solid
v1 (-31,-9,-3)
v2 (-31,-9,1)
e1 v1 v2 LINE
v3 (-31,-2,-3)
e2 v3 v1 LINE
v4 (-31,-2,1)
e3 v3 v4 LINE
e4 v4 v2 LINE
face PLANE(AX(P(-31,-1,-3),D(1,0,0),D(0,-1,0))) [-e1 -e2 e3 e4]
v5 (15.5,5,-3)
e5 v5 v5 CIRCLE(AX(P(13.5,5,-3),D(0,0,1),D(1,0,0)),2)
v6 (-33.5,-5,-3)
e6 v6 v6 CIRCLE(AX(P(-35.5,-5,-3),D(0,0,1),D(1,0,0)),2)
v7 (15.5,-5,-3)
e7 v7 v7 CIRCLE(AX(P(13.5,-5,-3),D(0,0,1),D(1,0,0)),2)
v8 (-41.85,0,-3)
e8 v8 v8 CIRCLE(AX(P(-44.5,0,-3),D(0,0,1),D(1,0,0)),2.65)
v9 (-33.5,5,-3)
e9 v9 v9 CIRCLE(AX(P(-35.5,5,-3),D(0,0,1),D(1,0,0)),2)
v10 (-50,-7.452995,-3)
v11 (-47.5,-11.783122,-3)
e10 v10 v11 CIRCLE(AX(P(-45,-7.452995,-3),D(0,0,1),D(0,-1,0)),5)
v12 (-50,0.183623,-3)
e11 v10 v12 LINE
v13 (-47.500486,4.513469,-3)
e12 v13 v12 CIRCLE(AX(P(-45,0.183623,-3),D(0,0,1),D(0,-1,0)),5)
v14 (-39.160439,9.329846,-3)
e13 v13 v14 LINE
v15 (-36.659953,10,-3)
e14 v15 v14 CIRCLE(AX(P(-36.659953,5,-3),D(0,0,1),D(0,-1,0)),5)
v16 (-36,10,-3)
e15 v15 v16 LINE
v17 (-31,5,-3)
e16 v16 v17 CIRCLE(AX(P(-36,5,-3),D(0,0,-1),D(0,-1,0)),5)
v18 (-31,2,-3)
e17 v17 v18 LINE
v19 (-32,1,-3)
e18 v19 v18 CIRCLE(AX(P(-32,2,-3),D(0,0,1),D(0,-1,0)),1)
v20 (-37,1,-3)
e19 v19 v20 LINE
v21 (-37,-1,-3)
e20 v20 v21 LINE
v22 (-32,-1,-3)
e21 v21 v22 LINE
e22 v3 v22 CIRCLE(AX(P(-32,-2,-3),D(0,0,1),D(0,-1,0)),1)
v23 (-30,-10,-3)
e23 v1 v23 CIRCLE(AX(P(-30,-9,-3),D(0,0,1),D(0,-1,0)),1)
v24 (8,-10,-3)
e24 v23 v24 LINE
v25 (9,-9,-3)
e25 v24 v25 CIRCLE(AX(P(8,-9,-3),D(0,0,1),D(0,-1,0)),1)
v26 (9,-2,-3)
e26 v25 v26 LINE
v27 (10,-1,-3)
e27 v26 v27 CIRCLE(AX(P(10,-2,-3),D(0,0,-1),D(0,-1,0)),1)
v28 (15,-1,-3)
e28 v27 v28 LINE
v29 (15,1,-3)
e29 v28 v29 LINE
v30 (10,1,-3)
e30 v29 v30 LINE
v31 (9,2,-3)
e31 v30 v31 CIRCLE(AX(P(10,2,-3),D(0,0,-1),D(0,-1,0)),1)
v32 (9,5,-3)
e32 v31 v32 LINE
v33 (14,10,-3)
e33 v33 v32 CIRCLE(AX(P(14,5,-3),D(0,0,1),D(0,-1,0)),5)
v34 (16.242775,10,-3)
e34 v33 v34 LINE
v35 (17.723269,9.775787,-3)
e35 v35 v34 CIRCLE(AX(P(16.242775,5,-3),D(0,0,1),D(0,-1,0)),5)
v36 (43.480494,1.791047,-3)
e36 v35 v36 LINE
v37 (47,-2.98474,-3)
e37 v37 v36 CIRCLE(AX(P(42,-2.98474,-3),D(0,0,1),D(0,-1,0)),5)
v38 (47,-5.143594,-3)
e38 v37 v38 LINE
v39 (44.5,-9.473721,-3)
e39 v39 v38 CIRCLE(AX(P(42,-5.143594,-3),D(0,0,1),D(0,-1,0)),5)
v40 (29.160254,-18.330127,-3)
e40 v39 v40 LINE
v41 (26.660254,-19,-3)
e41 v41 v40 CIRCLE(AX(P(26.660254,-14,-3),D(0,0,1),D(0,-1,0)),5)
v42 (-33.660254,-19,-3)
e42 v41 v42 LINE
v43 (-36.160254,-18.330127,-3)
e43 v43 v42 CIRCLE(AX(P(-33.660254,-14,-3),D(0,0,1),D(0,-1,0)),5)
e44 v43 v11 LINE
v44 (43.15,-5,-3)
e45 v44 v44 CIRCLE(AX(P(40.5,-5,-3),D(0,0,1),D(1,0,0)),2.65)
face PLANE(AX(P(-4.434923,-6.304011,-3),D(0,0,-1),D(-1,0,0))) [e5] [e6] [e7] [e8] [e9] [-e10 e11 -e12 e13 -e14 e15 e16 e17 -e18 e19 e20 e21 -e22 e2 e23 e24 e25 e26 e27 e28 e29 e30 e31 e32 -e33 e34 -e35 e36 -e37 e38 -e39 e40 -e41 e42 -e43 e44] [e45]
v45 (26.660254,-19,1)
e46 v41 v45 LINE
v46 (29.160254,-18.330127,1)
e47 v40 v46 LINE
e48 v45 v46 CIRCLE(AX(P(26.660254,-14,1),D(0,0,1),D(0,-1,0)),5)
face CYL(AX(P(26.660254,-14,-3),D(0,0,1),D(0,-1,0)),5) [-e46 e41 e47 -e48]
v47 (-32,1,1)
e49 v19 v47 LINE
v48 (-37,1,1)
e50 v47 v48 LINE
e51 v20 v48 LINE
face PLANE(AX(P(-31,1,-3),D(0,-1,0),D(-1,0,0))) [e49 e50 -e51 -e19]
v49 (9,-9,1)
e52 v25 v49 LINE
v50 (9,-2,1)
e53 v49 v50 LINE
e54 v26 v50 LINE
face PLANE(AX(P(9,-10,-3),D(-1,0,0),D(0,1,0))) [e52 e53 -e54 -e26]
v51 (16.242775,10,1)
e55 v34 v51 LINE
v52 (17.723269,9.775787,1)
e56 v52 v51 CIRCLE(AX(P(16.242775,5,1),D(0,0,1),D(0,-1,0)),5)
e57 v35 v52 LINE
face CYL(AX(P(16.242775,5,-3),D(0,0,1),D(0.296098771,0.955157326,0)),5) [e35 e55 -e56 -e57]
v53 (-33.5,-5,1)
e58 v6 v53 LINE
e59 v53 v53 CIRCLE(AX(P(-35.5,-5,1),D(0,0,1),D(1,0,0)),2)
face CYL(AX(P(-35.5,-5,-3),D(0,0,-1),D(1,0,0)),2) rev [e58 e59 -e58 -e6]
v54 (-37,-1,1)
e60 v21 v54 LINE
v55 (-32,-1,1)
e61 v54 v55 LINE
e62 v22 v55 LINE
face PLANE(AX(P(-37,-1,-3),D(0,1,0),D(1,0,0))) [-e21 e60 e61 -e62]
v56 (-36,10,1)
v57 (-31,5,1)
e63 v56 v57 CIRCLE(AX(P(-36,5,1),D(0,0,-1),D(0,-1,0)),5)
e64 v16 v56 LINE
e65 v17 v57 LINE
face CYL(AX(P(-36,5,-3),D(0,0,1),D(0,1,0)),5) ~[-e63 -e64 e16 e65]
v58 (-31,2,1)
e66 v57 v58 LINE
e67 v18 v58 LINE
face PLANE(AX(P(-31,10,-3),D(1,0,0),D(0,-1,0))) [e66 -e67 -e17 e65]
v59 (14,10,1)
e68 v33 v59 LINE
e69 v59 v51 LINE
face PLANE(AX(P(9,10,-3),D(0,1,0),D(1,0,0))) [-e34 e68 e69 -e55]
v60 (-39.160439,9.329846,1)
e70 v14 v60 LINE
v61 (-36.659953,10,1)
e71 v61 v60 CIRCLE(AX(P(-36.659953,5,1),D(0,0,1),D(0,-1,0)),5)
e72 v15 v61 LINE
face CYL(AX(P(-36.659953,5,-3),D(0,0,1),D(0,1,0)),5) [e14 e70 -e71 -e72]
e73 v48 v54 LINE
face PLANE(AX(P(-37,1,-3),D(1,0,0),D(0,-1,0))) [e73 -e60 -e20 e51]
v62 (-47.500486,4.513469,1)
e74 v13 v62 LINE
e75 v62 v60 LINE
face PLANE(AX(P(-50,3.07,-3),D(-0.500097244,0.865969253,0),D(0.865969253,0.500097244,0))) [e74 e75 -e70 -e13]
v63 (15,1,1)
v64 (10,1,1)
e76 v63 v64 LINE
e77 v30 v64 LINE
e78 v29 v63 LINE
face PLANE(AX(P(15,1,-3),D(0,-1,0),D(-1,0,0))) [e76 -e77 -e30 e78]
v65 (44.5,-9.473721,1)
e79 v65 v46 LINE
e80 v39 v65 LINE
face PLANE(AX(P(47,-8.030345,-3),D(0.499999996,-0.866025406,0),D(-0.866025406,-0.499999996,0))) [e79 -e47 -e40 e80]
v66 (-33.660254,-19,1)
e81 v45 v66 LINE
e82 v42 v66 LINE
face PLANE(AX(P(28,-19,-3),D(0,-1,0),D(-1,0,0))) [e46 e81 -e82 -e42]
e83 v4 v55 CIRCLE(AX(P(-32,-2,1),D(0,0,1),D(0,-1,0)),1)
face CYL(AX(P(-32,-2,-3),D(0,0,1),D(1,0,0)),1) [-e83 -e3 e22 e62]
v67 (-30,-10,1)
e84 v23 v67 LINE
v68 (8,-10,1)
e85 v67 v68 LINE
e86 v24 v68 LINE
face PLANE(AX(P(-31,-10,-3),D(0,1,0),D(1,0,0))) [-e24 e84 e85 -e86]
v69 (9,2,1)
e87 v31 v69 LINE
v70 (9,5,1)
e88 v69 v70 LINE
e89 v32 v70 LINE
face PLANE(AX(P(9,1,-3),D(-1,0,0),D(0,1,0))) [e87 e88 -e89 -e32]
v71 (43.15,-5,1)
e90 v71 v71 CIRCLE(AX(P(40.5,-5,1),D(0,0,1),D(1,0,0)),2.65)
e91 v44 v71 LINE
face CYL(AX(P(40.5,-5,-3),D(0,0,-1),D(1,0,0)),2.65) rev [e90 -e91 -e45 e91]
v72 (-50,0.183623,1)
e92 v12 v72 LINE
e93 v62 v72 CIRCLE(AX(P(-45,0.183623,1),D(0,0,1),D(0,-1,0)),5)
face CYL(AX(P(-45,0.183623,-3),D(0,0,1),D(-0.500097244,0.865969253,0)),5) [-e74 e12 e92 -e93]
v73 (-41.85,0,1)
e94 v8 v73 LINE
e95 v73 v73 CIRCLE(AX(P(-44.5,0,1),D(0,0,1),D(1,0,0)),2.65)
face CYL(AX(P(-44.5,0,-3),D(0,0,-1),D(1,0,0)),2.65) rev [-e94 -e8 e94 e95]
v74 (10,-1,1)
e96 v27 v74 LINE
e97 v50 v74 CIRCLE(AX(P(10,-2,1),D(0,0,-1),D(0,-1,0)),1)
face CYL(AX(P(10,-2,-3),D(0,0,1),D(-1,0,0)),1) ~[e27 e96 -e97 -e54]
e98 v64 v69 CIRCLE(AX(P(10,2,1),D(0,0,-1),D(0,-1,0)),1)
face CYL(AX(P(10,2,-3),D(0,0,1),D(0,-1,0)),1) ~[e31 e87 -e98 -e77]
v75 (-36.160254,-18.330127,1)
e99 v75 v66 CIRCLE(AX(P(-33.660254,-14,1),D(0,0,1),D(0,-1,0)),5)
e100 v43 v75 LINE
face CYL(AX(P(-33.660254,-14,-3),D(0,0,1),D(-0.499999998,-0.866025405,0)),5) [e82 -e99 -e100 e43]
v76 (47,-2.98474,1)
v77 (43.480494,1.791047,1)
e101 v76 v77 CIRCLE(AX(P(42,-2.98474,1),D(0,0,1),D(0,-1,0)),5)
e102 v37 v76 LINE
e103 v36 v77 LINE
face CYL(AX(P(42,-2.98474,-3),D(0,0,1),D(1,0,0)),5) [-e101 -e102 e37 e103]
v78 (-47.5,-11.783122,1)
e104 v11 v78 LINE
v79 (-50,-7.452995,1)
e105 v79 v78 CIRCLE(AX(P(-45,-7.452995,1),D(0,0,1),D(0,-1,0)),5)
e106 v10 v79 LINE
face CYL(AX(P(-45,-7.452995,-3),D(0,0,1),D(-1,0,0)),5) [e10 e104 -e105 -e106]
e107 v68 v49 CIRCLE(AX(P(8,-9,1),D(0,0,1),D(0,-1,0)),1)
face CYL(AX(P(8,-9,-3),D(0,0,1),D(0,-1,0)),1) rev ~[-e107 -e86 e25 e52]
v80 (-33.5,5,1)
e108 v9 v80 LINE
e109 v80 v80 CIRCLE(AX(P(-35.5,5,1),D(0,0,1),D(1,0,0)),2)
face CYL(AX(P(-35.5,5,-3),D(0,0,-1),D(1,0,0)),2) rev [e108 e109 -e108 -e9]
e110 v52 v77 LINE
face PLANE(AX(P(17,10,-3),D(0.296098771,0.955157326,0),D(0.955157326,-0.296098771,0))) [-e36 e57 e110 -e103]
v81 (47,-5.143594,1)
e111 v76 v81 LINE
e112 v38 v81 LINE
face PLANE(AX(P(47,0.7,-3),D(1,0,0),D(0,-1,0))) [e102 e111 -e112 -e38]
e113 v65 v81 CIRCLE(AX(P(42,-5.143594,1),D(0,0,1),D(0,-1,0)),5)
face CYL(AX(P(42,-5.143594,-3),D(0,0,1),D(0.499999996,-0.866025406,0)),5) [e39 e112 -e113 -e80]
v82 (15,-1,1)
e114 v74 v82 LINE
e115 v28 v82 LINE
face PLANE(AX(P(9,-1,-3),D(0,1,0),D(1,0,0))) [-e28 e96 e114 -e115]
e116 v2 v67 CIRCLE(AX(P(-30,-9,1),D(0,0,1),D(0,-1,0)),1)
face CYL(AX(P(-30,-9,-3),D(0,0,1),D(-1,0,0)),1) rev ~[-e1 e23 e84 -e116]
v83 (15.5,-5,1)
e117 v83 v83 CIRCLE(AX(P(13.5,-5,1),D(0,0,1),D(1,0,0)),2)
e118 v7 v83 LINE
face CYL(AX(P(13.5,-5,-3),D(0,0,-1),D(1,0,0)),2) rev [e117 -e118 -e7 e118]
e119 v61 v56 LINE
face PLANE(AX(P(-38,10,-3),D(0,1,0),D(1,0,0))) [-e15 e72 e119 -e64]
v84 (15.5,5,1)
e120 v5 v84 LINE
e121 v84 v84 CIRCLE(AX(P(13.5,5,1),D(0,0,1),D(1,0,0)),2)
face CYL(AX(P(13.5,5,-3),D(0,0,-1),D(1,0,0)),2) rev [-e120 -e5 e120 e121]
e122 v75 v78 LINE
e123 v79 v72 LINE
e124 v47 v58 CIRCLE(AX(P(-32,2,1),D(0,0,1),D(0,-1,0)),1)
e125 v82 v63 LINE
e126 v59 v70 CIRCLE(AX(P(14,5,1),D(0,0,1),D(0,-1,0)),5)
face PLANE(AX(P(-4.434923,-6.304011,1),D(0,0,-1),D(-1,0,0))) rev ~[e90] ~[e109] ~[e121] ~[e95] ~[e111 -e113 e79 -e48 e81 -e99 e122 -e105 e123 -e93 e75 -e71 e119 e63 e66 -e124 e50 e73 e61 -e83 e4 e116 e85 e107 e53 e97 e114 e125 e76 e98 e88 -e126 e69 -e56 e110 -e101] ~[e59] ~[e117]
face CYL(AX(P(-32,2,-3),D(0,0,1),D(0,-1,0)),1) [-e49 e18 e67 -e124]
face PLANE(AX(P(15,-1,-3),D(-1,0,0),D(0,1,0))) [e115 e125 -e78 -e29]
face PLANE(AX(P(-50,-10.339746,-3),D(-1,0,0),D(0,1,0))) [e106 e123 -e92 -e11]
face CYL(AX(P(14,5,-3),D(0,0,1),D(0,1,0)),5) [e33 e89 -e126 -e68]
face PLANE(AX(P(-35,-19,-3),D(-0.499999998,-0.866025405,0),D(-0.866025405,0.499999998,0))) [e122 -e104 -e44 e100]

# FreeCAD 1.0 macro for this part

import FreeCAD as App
import Part
import Sketcher

V = App.Vector
Q = App.Units.Quantity


def edges_at(feature, points):
    """Names of the edges that pass closest to the given points."""
    edges = feature.Shape.Edges
    near = lambda p: min(range(len(edges)), key=lambda i: edges[i].distToShape(Part.Vertex(*p))[0])
    return sorted({f"Edge{near(p) + 1}" for p in points})

doc = App.newDocument("Part")
params = doc.addObject("Spreadsheet::Sheet", "Params")
for row, (alias, value) in enumerate([
    ("sketch1_diameter", "4 mm"),
    ("sketch1_diameter2", "5.3 mm"),
    ("sketch1_width", "7 mm"),
    ("sketch1_width2", "63 mm"),
    ("sketch1_width3", "8 mm"),
    ("pad1_length", "4 mm"),
    ("fillet_radius", "5 mm"),
    ("fillet2_radius", "1 mm"),
    ("fillet3_radius", "1 mm"),
], start=1):
    params.set(f"A{row}", alias)
    params.set(f"B{row}", "=" + value)
    params.setAlias(f"B{row}", alias)

body = doc.addObject("PartDesign::Body", "Body")

sketch1 = body.newObject("Sketcher::SketchObject", "Sketch")
sketch1.AttachmentSupport = (doc.getObject("XY_Plane"), [""])
sketch1.MapMode = "FlatFace"
sketch1.AttachmentOffset = App.Placement(V(0, 0, -3), App.Rotation())
sketch1.addGeometry(Part.LineSegment(V(-31, 10, 0), V(-38, 10, 0)), False)
sketch1.addGeometry(Part.LineSegment(V(-38, 10, 0), V(-50, 3.07, 0)), False)
sketch1.addGeometry(Part.LineSegment(V(-50, 3.07, 0), V(-50, -10.339746, 0)), False)
sketch1.addGeometry(Part.LineSegment(V(-50, -10.339746, 0), V(-35, -19, 0)), False)
sketch1.addGeometry(Part.LineSegment(V(-35, -19, 0), V(28, -19, 0)), False)
sketch1.addGeometry(Part.LineSegment(V(28, -19, 0), V(47, -8.030345, 0)), False)
sketch1.addGeometry(Part.LineSegment(V(47, -8.030345, 0), V(47, 0.7, 0)), False)
sketch1.addGeometry(Part.LineSegment(V(47, 0.7, 0), V(17, 10, 0)), False)
sketch1.addGeometry(Part.LineSegment(V(17, 10, 0), V(9, 10, 0)), False)
sketch1.addGeometry(Part.LineSegment(V(9, 10, 0), V(9, 1, 0)), False)
sketch1.addGeometry(Part.LineSegment(V(9, 1, 0), V(15, 1, 0)), False)
sketch1.addGeometry(Part.LineSegment(V(15, 1, 0), V(15, -1, 0)), False)
sketch1.addGeometry(Part.LineSegment(V(15, -1, 0), V(9, -1, 0)), False)
sketch1.addGeometry(Part.LineSegment(V(9, -1, 0), V(9, -10, 0)), False)
sketch1.addGeometry(Part.LineSegment(V(9, -10, 0), V(-31, -10, 0)), False)
sketch1.addGeometry(Part.LineSegment(V(-31, -10, 0), V(-31, -1, 0)), False)
sketch1.addGeometry(Part.LineSegment(V(-31, -1, 0), V(-37, -1, 0)), False)
sketch1.addGeometry(Part.LineSegment(V(-37, -1, 0), V(-37, 1, 0)), False)
sketch1.addGeometry(Part.LineSegment(V(-37, 1, 0), V(-31, 1, 0)), False)
sketch1.addGeometry(Part.LineSegment(V(-31, 1, 0), V(-31, 10, 0)), False)
sketch1.addGeometry(Part.Circle(V(40.5, -5, 0), V(0, 0, 1), 2.65), False)
sketch1.addGeometry(Part.Circle(V(13.5, -5, 0), V(0, 0, 1), 2), False)
sketch1.addGeometry(Part.Circle(V(-35.5, -5, 0), V(0, 0, 1), 2), False)
sketch1.addGeometry(Part.Circle(V(13.5, 5, 0), V(0, 0, 1), 2), False)
sketch1.addGeometry(Part.Circle(V(-44.5, 0, 0), V(0, 0, 1), 2.65), False)
sketch1.addGeometry(Part.Circle(V(-35.5, 5, 0), V(0, 0, 1), 2), False)
sketch1.addConstraint(Sketcher.Constraint("Coincident", 0, 2, 1, 1))
sketch1.addConstraint(Sketcher.Constraint("Coincident", 1, 2, 2, 1))
sketch1.addConstraint(Sketcher.Constraint("Coincident", 2, 2, 3, 1))
sketch1.addConstraint(Sketcher.Constraint("Coincident", 3, 2, 4, 1))
sketch1.addConstraint(Sketcher.Constraint("Coincident", 4, 2, 5, 1))
sketch1.addConstraint(Sketcher.Constraint("Coincident", 5, 2, 6, 1))
sketch1.addConstraint(Sketcher.Constraint("Coincident", 6, 2, 7, 1))
sketch1.addConstraint(Sketcher.Constraint("Coincident", 7, 2, 8, 1))
sketch1.addConstraint(Sketcher.Constraint("Coincident", 8, 2, 9, 1))
sketch1.addConstraint(Sketcher.Constraint("Coincident", 9, 2, 10, 1))
sketch1.addConstraint(Sketcher.Constraint("Coincident", 10, 2, 11, 1))
sketch1.addConstraint(Sketcher.Constraint("Coincident", 11, 2, 12, 1))
sketch1.addConstraint(Sketcher.Constraint("Coincident", 12, 2, 13, 1))
sketch1.addConstraint(Sketcher.Constraint("Coincident", 13, 2, 14, 1))
sketch1.addConstraint(Sketcher.Constraint("Coincident", 14, 2, 15, 1))
sketch1.addConstraint(Sketcher.Constraint("Coincident", 15, 2, 16, 1))
sketch1.addConstraint(Sketcher.Constraint("Coincident", 16, 2, 17, 1))
sketch1.addConstraint(Sketcher.Constraint("Coincident", 17, 2, 18, 1))
sketch1.addConstraint(Sketcher.Constraint("Coincident", 18, 2, 19, 1))
sketch1.addConstraint(Sketcher.Constraint("Coincident", 19, 2, 0, 1))
sketch1.addConstraint(Sketcher.Constraint("Horizontal", 0))
sketch1.addConstraint(Sketcher.Constraint("Vertical", 2))
sketch1.addConstraint(Sketcher.Constraint("Horizontal", 4))
sketch1.addConstraint(Sketcher.Constraint("Vertical", 6))
sketch1.addConstraint(Sketcher.Constraint("Horizontal", 8))
sketch1.addConstraint(Sketcher.Constraint("Vertical", 9))
sketch1.addConstraint(Sketcher.Constraint("Horizontal", 10))
sketch1.addConstraint(Sketcher.Constraint("Vertical", 11))
sketch1.addConstraint(Sketcher.Constraint("Horizontal", 12))
sketch1.addConstraint(Sketcher.Constraint("Vertical", 13))
sketch1.addConstraint(Sketcher.Constraint("Horizontal", 14))
sketch1.addConstraint(Sketcher.Constraint("Vertical", 15))
sketch1.addConstraint(Sketcher.Constraint("Horizontal", 16))
sketch1.addConstraint(Sketcher.Constraint("Vertical", 17))
sketch1.addConstraint(Sketcher.Constraint("Horizontal", 18))
sketch1.addConstraint(Sketcher.Constraint("Vertical", 19))
sketch1.addConstraint(Sketcher.Constraint("Equal", 21, 22))
sketch1.addConstraint(Sketcher.Constraint("Equal", 22, 23))
sketch1.addConstraint(Sketcher.Constraint("Equal", 20, 24))
sketch1.addConstraint(Sketcher.Constraint("Equal", 23, 25))
sketch1.addConstraint(Sketcher.Constraint("Symmetric", 21, 3, 23, 3, -1))
sketch1.addConstraint(Sketcher.Constraint("Symmetric", 22, 3, 25, 3, -1))
sketch1.addConstraint(Sketcher.Constraint("Symmetric", 9, 2, 12, 2, -1))
sketch1.addConstraint(Sketcher.Constraint("Symmetric", 15, 2, 18, 2, -1))
sketch1.addConstraint(Sketcher.Constraint("PointOnObject", 24, 3, -1))
sketch1.addConstraint(Sketcher.Constraint("Horizontal", 20, 3, 21, 3))
sketch1.addConstraint(Sketcher.Constraint("Horizontal", 21, 3, 22, 3))
sketch1.addConstraint(Sketcher.Constraint("Horizontal", 0, 2, 7, 2))
sketch1.addConstraint(Sketcher.Constraint("Horizontal", 12, 2, 15, 2))
sketch1.addConstraint(Sketcher.Constraint("Equal", 12, 16))
sketch1.addConstraint(Sketcher.Constraint("Equal", 9, 13))
sketch1.addConstraint(Sketcher.Constraint("Diameter", 21, 4.0))
sketch1.addConstraint(Sketcher.Constraint("Diameter", 20, 5.3))
sketch1.addConstraint(Sketcher.Constraint("DistanceX", 0, 2, 0, 1, 7.0))
sketch1.addConstraint(Sketcher.Constraint("DistanceX", 4, 1, 4, 2, 63.0))
sketch1.addConstraint(Sketcher.Constraint("DistanceX", 8, 2, 8, 1, 8.0))
sketch1.addConstraint(Sketcher.Constraint("DistanceX", 10, 1, 10, 2, 6.0))
sketch1.addConstraint(Sketcher.Constraint("DistanceX", 14, 2, 14, 1, 40.0))
sketch1.addConstraint(Sketcher.Constraint("DistanceY", 9, 2, 9, 1, 9.0))
sketch1.addConstraint(Sketcher.Constraint("DistanceY", 11, 2, 11, 1, 2.0))
sketch1.addConstraint(Sketcher.Constraint("Angle", 3, Q("-30 deg")))
sketch1.addConstraint(Sketcher.Constraint("Angle", 5, Q("30 deg")))
sketch1.addConstraint(Sketcher.Constraint("DistanceY", 20, 3, -1, 1, 5.0))
sketch1.addConstraint(Sketcher.Constraint("DistanceX", 0, 2, -1, 1, 38.0))
sketch1.addConstraint(Sketcher.Constraint("DistanceX", 1, 2, -1, 1, 50.0))
sketch1.addConstraint(Sketcher.Constraint("DistanceX", 3, 2, -1, 1, 35.0))
sketch1.addConstraint(Sketcher.Constraint("DistanceY", 3, 2, -1, 1, 19.0))
sketch1.addConstraint(Sketcher.Constraint("DistanceX", -1, 1, 5, 2, 47.0))
sketch1.addConstraint(Sketcher.Constraint("DistanceX", 21, 3, 20, 3, 27.0))
sketch1.addConstraint(Sketcher.Constraint("DistanceX", 22, 3, 21, 3, 49.0))
sketch1.addConstraint(Sketcher.Constraint("DistanceX", 24, 3, 22, 3, 9.0))
sketch1.addConstraint(Sketcher.Constraint("DistanceX", -1, 1, 20, 3, 40.5))
sketch1.addConstraint(Sketcher.Constraint("DistanceY", -1, 1, 6, 2, 0.7))
sketch1.addConstraint(Sketcher.Constraint("DistanceY", -1, 1, 1, 2, 3.07))
sketch1.setExpression("Constraints[51]", "Params.sketch1_diameter")
sketch1.setExpression("Constraints[52]", "Params.sketch1_diameter2")
sketch1.setExpression("Constraints[53]", "Params.sketch1_width")
sketch1.setExpression("Constraints[54]", "Params.sketch1_width2")
sketch1.setExpression("Constraints[55]", "Params.sketch1_width3")
pad1 = body.newObject("PartDesign::Pad", "Pad")
pad1.Profile = sketch1
pad1.setExpression("Length", "Params.pad1_length")
doc.recompute()

fillet = body.newObject("PartDesign::Fillet", "Fillet")
fillet.Base = (pad1, edges_at(pad1, [
    (28, -19, -1),
    (47, -8.03, -1),
    (-35, -19, -1),
    (-50, -10.34, -1),
    (-50, 3.07, -1),
    (-38, 10, -1),
    (47, 0.7, -1),
    (17, 10, -1),
    (-31, 10, -1),
    (9, 10, -1),
]))
fillet.setExpression("Radius", "Params.fillet_radius")
doc.recompute()

fillet2 = body.newObject("PartDesign::Fillet", "Fillet001")
fillet2.Base = (fillet, edges_at(fillet, [(-31, -10, -1), (9, -10, -1)]))
fillet2.setExpression("Radius", "Params.fillet2_radius")
doc.recompute()

fillet3 = body.newObject("PartDesign::Fillet", "Fillet002")
fillet3.Base = (fillet2, edges_at(fillet2, [
    (-31, -1, -1),
    (-31, 1, -1),
    (9, 1, -1),
    (9, -1, -1),
]))
fillet3.setExpression("Radius", "Params.fillet3_radius")

doc.recompute()
